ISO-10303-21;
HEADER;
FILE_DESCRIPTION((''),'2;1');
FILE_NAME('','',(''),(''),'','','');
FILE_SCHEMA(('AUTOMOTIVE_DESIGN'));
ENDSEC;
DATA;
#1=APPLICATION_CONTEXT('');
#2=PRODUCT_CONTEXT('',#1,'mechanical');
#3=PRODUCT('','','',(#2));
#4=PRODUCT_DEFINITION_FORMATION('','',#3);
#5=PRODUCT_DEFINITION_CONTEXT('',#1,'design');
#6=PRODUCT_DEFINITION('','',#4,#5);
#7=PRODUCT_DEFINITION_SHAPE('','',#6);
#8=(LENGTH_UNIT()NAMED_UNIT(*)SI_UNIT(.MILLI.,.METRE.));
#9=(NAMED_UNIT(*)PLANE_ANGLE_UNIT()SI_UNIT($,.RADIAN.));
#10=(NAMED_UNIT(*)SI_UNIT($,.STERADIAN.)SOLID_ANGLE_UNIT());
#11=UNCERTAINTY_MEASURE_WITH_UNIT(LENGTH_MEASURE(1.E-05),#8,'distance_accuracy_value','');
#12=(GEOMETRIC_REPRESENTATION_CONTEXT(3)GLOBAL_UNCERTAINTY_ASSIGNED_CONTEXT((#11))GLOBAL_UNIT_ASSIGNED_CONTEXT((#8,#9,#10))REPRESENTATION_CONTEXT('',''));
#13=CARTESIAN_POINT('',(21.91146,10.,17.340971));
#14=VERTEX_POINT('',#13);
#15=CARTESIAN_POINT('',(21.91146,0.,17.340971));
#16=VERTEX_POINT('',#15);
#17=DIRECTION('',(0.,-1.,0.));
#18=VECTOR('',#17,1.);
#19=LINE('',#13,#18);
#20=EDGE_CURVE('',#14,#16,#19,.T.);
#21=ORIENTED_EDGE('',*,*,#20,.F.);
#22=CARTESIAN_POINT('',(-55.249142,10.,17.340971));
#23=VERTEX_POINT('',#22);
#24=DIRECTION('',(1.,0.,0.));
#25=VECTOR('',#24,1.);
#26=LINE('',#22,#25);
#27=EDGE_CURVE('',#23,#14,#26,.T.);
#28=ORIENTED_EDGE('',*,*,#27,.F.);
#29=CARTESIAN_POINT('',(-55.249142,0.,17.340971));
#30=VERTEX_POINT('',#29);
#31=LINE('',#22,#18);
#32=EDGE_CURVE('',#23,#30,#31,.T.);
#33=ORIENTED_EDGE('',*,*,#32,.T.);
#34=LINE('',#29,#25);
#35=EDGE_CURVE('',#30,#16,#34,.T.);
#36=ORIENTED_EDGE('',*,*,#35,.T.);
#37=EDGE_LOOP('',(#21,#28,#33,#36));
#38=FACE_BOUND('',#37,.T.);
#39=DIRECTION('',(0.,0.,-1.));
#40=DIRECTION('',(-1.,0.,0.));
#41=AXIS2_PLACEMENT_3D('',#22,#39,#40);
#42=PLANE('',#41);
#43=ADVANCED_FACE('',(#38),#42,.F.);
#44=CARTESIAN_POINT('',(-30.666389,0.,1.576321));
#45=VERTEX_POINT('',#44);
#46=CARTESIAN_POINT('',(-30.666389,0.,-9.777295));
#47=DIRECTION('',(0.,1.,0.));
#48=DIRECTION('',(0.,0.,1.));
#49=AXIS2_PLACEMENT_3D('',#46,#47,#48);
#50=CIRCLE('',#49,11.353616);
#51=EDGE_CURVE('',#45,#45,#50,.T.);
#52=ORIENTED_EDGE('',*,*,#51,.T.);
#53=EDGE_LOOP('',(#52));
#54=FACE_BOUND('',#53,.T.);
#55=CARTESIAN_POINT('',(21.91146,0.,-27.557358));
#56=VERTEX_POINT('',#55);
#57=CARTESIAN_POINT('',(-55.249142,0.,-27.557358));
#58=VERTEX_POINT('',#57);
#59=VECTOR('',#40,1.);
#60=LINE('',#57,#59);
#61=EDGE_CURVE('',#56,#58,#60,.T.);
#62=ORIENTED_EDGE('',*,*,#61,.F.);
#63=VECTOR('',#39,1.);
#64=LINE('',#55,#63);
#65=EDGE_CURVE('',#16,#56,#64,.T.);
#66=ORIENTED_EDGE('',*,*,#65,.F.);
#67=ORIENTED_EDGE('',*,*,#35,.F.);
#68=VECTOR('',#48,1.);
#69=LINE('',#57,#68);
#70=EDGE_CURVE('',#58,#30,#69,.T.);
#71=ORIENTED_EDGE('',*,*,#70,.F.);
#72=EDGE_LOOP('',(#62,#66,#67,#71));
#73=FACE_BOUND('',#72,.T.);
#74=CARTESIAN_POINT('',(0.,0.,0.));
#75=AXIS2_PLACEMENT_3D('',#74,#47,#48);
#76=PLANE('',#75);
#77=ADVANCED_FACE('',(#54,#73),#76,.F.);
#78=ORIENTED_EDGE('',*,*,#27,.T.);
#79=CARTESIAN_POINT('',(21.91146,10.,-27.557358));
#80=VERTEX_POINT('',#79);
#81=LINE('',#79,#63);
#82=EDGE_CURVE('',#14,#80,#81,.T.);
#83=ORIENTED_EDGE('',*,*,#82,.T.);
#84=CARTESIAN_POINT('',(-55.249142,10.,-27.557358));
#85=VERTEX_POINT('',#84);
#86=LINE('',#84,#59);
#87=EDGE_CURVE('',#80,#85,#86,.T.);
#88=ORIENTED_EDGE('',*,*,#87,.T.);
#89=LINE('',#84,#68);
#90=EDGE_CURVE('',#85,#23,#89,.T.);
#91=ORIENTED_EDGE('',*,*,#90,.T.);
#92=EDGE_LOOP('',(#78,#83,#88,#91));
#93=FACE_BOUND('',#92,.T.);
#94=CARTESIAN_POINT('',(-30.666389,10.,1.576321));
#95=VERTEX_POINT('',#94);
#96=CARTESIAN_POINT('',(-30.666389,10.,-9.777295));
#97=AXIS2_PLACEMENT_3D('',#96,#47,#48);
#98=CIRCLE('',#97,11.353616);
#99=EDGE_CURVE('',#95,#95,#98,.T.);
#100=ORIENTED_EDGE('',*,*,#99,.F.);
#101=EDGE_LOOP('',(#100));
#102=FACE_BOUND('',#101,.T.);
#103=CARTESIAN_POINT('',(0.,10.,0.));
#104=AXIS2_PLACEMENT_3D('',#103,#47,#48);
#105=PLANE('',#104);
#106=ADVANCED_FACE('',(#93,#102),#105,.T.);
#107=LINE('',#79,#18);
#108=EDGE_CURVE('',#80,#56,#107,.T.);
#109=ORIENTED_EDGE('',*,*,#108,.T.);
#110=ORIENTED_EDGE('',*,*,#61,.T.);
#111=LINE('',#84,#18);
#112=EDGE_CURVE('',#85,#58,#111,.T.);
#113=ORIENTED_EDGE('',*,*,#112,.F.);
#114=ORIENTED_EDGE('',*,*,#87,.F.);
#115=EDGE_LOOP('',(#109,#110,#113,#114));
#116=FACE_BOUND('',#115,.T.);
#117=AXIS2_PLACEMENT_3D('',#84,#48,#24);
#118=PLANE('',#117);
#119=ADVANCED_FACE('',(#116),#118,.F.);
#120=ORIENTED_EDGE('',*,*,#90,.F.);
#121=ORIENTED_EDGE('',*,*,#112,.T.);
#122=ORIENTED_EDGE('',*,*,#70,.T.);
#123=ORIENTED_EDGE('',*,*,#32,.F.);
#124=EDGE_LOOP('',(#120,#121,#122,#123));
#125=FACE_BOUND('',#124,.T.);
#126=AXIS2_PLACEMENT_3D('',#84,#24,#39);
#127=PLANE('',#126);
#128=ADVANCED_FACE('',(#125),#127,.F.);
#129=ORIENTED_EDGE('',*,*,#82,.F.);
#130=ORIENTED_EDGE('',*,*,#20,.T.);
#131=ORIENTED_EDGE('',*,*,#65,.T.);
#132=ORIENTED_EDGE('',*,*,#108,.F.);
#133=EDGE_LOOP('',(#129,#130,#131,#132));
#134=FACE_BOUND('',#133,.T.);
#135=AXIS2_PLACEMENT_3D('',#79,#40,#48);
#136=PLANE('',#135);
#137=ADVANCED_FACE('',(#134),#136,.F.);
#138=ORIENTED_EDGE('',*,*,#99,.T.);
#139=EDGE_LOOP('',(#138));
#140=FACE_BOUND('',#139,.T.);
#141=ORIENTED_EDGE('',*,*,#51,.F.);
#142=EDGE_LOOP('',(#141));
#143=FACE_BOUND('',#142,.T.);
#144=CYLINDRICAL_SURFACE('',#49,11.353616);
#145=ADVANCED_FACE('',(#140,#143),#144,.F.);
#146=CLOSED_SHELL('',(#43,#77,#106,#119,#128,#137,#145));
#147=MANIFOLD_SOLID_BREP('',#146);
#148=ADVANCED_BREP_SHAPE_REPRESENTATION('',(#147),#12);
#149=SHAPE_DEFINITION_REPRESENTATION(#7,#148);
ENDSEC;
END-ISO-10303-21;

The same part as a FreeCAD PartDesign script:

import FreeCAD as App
import Part
import Sketcher

V = App.Vector
Q = App.Units.Quantity

doc = App.newDocument("Part")
params = doc.addObject("Spreadsheet::Sheet", "Params")
for row, (alias, value) in enumerate([
    ("pad1_length", "10 mm"),
    ("pocket1_length", "10 mm"),
], start=1):
    params.set(f"A{row}", alias)
    params.set(f"B{row}", "=" + value)
    params.setAlias(f"B{row}", alias)

body = doc.addObject("PartDesign::Body", "Body")

# Sketch on XZ plane
sketch1 = body.newObject("Sketcher::SketchObject", "Sketch")
sketch1.AttachmentSupport = (doc.getObject("XZ_Plane"), [""])
sketch1.MapMode = "FlatFace"
sketch1.addGeometry(Part.LineSegment(V(-55.249142, -27.557358, 0), V(-55.249142, 17.340971, 0)), False)
sketch1.addGeometry(Part.LineSegment(V(-55.249142, 17.340971, 0), V(21.91146, 17.340971, 0)), False)
sketch1.addGeometry(Part.LineSegment(V(21.91146, 17.340971, 0), V(21.91146, -27.557358, 0)), False)
sketch1.addGeometry(Part.LineSegment(V(21.91146, -27.557358, 0), V(-55.249142, -27.557358, 0)), False)
sketch1.addConstraint(Sketcher.Constraint("Coincident", 0, 2, 1, 1))
sketch1.addConstraint(Sketcher.Constraint("Coincident", 1, 2, 2, 1))
sketch1.addConstraint(Sketcher.Constraint("Coincident", 2, 2, 3, 1))
sketch1.addConstraint(Sketcher.Constraint("Coincident", 3, 2, 0, 1))
sketch1.addConstraint(Sketcher.Constraint("Vertical", 0))
sketch1.addConstraint(Sketcher.Constraint("Horizontal", 1))
sketch1.addConstraint(Sketcher.Constraint("Vertical", 2))
sketch1.addConstraint(Sketcher.Constraint("Horizontal", 3))
sketch1.addConstraint(Sketcher.Constraint("DistanceX", 1, 1, 1, 2, Q("77.160602 mm")))
sketch1.addConstraint(Sketcher.Constraint("DistanceY", 0, 1, 0, 2, Q("44.898329 mm")))
sketch1.addConstraint(Sketcher.Constraint("DistanceX", 0, 2, -1, 1, Q("55.249142 mm")))
sketch1.addConstraint(Sketcher.Constraint("DistanceY", -1, 1, 0, 2, Q("17.340971 mm")))
pad1 = body.newObject("PartDesign::Pad", "Pad")
pad1.Profile = sketch1
pad1.setExpression("Length", "Params.pad1_length")
pad1.Reversed = True

# Sketch on XZ plane
sketch2 = body.newObject("Sketcher::SketchObject", "Sketch001")
sketch2.AttachmentSupport = (doc.getObject("XZ_Plane"), [""])
sketch2.MapMode = "FlatFace"
sketch2.AttachmentOffset = App.Placement(V(0, 0, -10), App.Rotation())
sketch2.addGeometry(Part.Circle(V(-30.666389, -9.777295, 0), V(0, 0, 1), 11.353616), False)
sketch2.addConstraint(Sketcher.Constraint("Diameter", 0, Q("22.707231 mm")))
sketch2.addConstraint(Sketcher.Constraint("DistanceX", 0, 3, -1, 1, Q("30.666389 mm")))
sketch2.addConstraint(Sketcher.Constraint("DistanceY", 0, 3, -1, 1, Q("9.777295 mm")))
pocket1 = body.newObject("PartDesign::Pocket", "Pocket")
pocket1.Profile = sketch2
pocket1.setExpression("Length", "Params.pocket1_length")
pocket1.Reversed = True

doc.recompute()
